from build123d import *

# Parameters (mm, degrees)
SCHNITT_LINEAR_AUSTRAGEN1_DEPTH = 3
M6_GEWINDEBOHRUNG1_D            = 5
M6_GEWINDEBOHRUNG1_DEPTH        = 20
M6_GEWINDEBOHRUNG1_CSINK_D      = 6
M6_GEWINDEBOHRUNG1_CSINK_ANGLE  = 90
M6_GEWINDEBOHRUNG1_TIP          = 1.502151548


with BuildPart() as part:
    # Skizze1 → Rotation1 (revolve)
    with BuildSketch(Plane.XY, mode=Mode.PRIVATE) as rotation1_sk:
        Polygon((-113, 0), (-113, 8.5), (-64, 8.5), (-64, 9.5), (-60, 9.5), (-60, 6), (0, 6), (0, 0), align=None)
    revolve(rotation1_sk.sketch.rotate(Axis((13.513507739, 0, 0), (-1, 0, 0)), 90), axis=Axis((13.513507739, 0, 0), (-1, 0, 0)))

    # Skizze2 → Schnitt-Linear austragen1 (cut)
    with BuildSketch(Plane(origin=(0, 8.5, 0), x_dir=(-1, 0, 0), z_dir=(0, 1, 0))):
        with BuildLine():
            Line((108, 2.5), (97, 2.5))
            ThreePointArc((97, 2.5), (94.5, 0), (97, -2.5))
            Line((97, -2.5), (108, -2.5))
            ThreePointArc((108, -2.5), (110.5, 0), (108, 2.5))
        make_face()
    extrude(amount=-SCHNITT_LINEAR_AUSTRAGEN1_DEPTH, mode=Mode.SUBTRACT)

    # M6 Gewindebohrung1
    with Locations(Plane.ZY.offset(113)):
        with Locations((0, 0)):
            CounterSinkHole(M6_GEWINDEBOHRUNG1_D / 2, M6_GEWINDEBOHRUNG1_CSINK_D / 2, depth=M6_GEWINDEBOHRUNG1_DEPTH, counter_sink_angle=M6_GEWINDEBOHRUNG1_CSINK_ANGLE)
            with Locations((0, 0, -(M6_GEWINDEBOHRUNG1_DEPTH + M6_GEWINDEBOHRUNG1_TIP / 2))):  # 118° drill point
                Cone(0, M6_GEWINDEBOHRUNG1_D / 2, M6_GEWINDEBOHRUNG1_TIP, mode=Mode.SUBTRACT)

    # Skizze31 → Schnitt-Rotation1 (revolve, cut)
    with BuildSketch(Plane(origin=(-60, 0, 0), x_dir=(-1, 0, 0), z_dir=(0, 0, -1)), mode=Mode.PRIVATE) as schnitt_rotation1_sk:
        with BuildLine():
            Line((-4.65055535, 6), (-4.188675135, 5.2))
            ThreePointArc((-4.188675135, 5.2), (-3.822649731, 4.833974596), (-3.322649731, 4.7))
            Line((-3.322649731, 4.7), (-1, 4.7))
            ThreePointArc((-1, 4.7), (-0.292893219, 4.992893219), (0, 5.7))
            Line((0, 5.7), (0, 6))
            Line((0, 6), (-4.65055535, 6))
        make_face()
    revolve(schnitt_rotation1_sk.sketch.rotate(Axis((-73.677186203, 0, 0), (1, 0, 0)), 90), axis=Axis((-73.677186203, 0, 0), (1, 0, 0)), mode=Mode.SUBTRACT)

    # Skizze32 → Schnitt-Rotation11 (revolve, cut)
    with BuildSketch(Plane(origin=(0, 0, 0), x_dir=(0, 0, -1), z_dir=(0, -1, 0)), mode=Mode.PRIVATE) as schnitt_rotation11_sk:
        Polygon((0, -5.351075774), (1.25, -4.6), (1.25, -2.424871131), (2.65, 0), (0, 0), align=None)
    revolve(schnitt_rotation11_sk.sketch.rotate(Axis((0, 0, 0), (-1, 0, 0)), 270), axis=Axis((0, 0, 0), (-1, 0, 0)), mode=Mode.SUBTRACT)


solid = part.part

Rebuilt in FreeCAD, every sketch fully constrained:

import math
import FreeCAD as App
import Part
import Sketcher

V = App.Vector
Q = App.Units.Quantity

doc = App.newDocument("Part")
body = doc.addObject("PartDesign::Body", "Body")

# Sketch on XY plane
sketch1 = doc.addObject("Sketcher::SketchObject", "Sketch")
body.addObject(sketch1)
sketch1.AttachmentSupport = (doc.XY_Plane, [""])
sketch1.MapMode = "FlatFace"
sketch1.addGeometry(Part.LineSegment(V(-113, 8.5, 0), V(-113, 0, 0)), False)
sketch1.addGeometry(Part.LineSegment(V(-113, 0, 0), V(0, 0, 0)), False)
sketch1.addGeometry(Part.LineSegment(V(0, 0, 0), V(0, 6, 0)), False)
sketch1.addGeometry(Part.LineSegment(V(0, 6, 0), V(-60, 6, 0)), False)
sketch1.addGeometry(Part.LineSegment(V(-60, 6, 0), V(-60, 9.5, 0)), False)
sketch1.addGeometry(Part.LineSegment(V(-60, 9.5, 0), V(-64, 9.5, 0)), False)
sketch1.addGeometry(Part.LineSegment(V(-64, 9.5, 0), V(-64, 8.5, 0)), False)
sketch1.addGeometry(Part.LineSegment(V(-64, 8.5, 0), V(-113, 8.5, 0)), False)
sketch1.addConstraint(Sketcher.Constraint("Coincident", 0, 2, 1, 1))
sketch1.addConstraint(Sketcher.Constraint("Coincident", 1, 2, 2, 1))
sketch1.addConstraint(Sketcher.Constraint("Coincident", 2, 2, 3, 1))
sketch1.addConstraint(Sketcher.Constraint("Coincident", 3, 2, 4, 1))
sketch1.addConstraint(Sketcher.Constraint("Coincident", 4, 2, 5, 1))
sketch1.addConstraint(Sketcher.Constraint("Coincident", 5, 2, 6, 1))
sketch1.addConstraint(Sketcher.Constraint("Coincident", 6, 2, 7, 1))
sketch1.addConstraint(Sketcher.Constraint("Coincident", 7, 2, 0, 1))
sketch1.addConstraint(Sketcher.Constraint("Vertical", 0))
sketch1.addConstraint(Sketcher.Constraint("Horizontal", 1))
sketch1.addConstraint(Sketcher.Constraint("Vertical", 2))
sketch1.addConstraint(Sketcher.Constraint("Horizontal", 3))
sketch1.addConstraint(Sketcher.Constraint("Vertical", 4))
sketch1.addConstraint(Sketcher.Constraint("Horizontal", 5))
sketch1.addConstraint(Sketcher.Constraint("Vertical", 6))
sketch1.addConstraint(Sketcher.Constraint("Horizontal", 7))
sketch1.addConstraint(Sketcher.Constraint("Coincident", 1, 2, -1, 1))
sketch1.addConstraint(Sketcher.Constraint("DistanceX", 1, 1, 1, 2, 113.0))
sketch1.addConstraint(Sketcher.Constraint("DistanceX", 3, 2, 3, 1, 60.0))
sketch1.addConstraint(Sketcher.Constraint("DistanceX", 5, 2, 5, 1, 4.0))
sketch1.addConstraint(Sketcher.Constraint("DistanceY", 2, 1, 2, 2, 6.0))
sketch1.addConstraint(Sketcher.Constraint("DistanceY", 6, 2, 6, 1, 1.0))
sketch1.addConstraint(Sketcher.Constraint("DistanceY", 0, 2, 0, 1, 8.5))
revolution = doc.addObject("PartDesign::Revolution", "Revolution")
body.addObject(revolution)
revolution.Profile = sketch1
revolution.ReferenceAxis = (sketch1, ["H_Axis"])
revolution.Angle = 360

# Sketch on XZ plane
sketch2 = doc.addObject("Sketcher::SketchObject", "Sketch001")
body.addObject(sketch2)
sketch2.AttachmentSupport = (doc.XZ_Plane, [""])
sketch2.MapMode = "FlatFace"
sketch2.AttachmentOffset = App.Placement(V(0, 0, -8.5), App.Rotation())
sketch2.addGeometry(Part.LineSegment(V(-108, 2.5, 0), V(-97, 2.5, 0)), False)
sketch2.addGeometry(Part.ArcOfCircle(Part.Circle(V(-97, 0, 0), V(0, 0, 1), 2.5), math.radians(-90), math.radians(90)), False)
sketch2.addGeometry(Part.LineSegment(V(-97, -2.5, 0), V(-108, -2.5, 0)), False)
sketch2.addGeometry(Part.ArcOfCircle(Part.Circle(V(-108, 0, 0), V(0, 0, 1), 2.5), math.radians(90), math.radians(270)), False)
sketch2.addConstraint(Sketcher.Constraint("Tangent", 0, 2, 1, 2))
sketch2.addConstraint(Sketcher.Constraint("Tangent", 1, 1, 2, 1))
sketch2.addConstraint(Sketcher.Constraint("Tangent", 2, 2, 3, 2))
sketch2.addConstraint(Sketcher.Constraint("Tangent", 3, 1, 0, 1))
sketch2.addConstraint(Sketcher.Constraint("Horizontal", 0))
sketch2.addConstraint(Sketcher.Constraint("Horizontal", 2))
sketch2.addConstraint(Sketcher.Constraint("PointOnObject", 1, 3, -1))
sketch2.addConstraint(Sketcher.Constraint("Radius", 1, 2.5))
sketch2.addConstraint(Sketcher.Constraint("DistanceX", 0, 1, 0, 2, 11.0))
sketch2.addConstraint(Sketcher.Constraint("DistanceX", 1, 3, -1, 1, 97.0))
pocket1 = doc.addObject("PartDesign::Pocket", "Pocket")
body.addObject(pocket1)
pocket1.Profile = sketch2
pocket1.Length = 3
pocket1.Reversed = True

# Sketch on YZ plane
sketch3 = doc.addObject("Sketcher::SketchObject", "Sketch002")
body.addObject(sketch3)
sketch3.AttachmentSupport = (doc.YZ_Plane, [""])
sketch3.MapMode = "FlatFace"
sketch3.AttachmentOffset = App.Placement(V(0, 0, -113), App.Rotation())
sketch3.addGeometry(Part.Circle(V(0, 0, 0), V(0, 0, 1), 2.5), False)
sketch3.addConstraint(Sketcher.Constraint("Coincident", 0, 3, -1, 1))
sketch3.addConstraint(Sketcher.Constraint("Diameter", 0, 5.0))
doc.recompute()
hole = doc.addObject("PartDesign::Hole", "Hole")
body.addObject(hole)
hole.Profile = sketch3
hole.ThreadType = "None"
hole.Diameter = 5
hole.DepthType = "Dimension"
hole.Depth = 20
hole.DrillPoint = "Angled"
hole.DrillPointAngle = 118
hole.HoleCutType = "Countersink"
hole.HoleCutDiameter = 6
hole.HoleCutCountersinkAngle = 90
hole.Reversed = True

# Sketch on XY plane
sketch4 = doc.addObject("Sketcher::SketchObject", "Sketch003")
body.addObject(sketch4)
sketch4.AttachmentSupport = (doc.XY_Plane, [""])
sketch4.MapMode = "FlatFace"
sketch4.addGeometry(Part.LineSegment(V(-55.35, 6, 0), V(-55.81, 5.2, 0)), False)
sketch4.addGeometry(Part.ArcOfCircle(Part.Circle(V(-56.68, 5.7, 0), V(0, 0, 1), 1), math.radians(-90), math.radians(-30)), False)
sketch4.addGeometry(Part.LineSegment(V(-56.68, 4.7, 0), V(-59, 4.7, 0)), False)
sketch4.addGeometry(Part.ArcOfCircle(Part.Circle(V(-59, 5.7, 0), V(0, 0, 1), 1), math.radians(-180), math.radians(-90)), False)
sketch4.addGeometry(Part.LineSegment(V(-60, 5.7, 0), V(-60, 6, 0)), False)
sketch4.addGeometry(Part.LineSegment(V(-60, 6, 0), V(-55.35, 6, 0)), False)
sketch4.addConstraint(Sketcher.Constraint("Tangent", 0, 2, 1, 2))
sketch4.addConstraint(Sketcher.Constraint("Tangent", 1, 1, 2, 1))
sketch4.addConstraint(Sketcher.Constraint("Tangent", 2, 2, 3, 2))
sketch4.addConstraint(Sketcher.Constraint("Tangent", 3, 1, 4, 1))
sketch4.addConstraint(Sketcher.Constraint("Coincident", 4, 2, 5, 1))
sketch4.addConstraint(Sketcher.Constraint("Coincident", 5, 2, 0, 1))
sketch4.addConstraint(Sketcher.Constraint("Horizontal", 2))
sketch4.addConstraint(Sketcher.Constraint("Vertical", 4))
sketch4.addConstraint(Sketcher.Constraint("Horizontal", 5))
sketch4.addConstraint(Sketcher.Constraint("Equal", 1, 3))
sketch4.addConstraint(Sketcher.Constraint("Radius", 1, 1.0))
sketch4.addConstraint(Sketcher.Constraint("Angle", 0, Q("-120 deg")))
sketch4.addConstraint(Sketcher.Constraint("DistanceY", 4, 1, 4, 2, 0.3))
sketch4.addConstraint(Sketcher.Constraint("DistanceX", 3, 3, -1, 1, 59.0))
sketch4.addConstraint(Sketcher.Constraint("DistanceY", -1, 1, 4, 2, 6.0))
sketch4.addConstraint(Sketcher.Constraint("DistanceX", 2, 2, 2, 1, 2.32265))
groove = doc.addObject("PartDesign::Groove", "Groove")
body.addObject(groove)
groove.Profile = sketch4
groove.ReferenceAxis = (sketch4, ["H_Axis"])
groove.Angle = 360

# Sketch on XZ plane
sketch5 = doc.addObject("Sketcher::SketchObject", "Sketch004")
body.addObject(sketch5)
sketch5.AttachmentSupport = (doc.XZ_Plane, [""])
sketch5.MapMode = "FlatFace"
sketch5.addGeometry(Part.LineSegment(V(-5.4, 0, 0), V(-4.6, -1.2, 0)), False)
sketch5.addGeometry(Part.LineSegment(V(-4.6, -1.2, 0), V(-2.4, -1.2, 0)), False)
sketch5.addGeometry(Part.LineSegment(V(-2.4, -1.2, 0), V(0, -2.6, 0)), False)
sketch5.addGeometry(Part.LineSegment(V(0, -2.6, 0), V(0, 0, 0)), False)
sketch5.addGeometry(Part.LineSegment(V(0, 0, 0), V(-5.4, 0, 0)), False)
sketch5.addConstraint(Sketcher.Constraint("Coincident", 0, 2, 1, 1))
sketch5.addConstraint(Sketcher.Constraint("Coincident", 1, 2, 2, 1))
sketch5.addConstraint(Sketcher.Constraint("Coincident", 2, 2, 3, 1))
sketch5.addConstraint(Sketcher.Constraint("Coincident", 3, 2, 4, 1))
sketch5.addConstraint(Sketcher.Constraint("Coincident", 4, 2, 0, 1))
sketch5.addConstraint(Sketcher.Constraint("Horizontal", 1))
sketch5.addConstraint(Sketcher.Constraint("Vertical", 3))
sketch5.addConstraint(Sketcher.Constraint("Horizontal", 4))
sketch5.addConstraint(Sketcher.Constraint("Coincident", 3, 2, -1, 1))
sketch5.addConstraint(Sketcher.Constraint("Angle", 0, Q("-59 deg")))
sketch5.addConstraint(Sketcher.Constraint("Angle", 2, Q("-30 deg")))
sketch5.addConstraint(Sketcher.Constraint("Distance", 2, 2.8))
sketch5.addConstraint(Sketcher.Constraint("DistanceY", 3, 1, 3, 2, 2.65))
sketch5.addConstraint(Sketcher.Constraint("DistanceX", 0, 2, -1, 1, 4.6))
groove2 = doc.addObject("PartDesign::Groove", "Groove001")
body.addObject(groove2)
groove2.Profile = sketch5
groove2.ReferenceAxis = (sketch5, ["H_Axis"])
groove2.Angle = 360

doc.recompute()
